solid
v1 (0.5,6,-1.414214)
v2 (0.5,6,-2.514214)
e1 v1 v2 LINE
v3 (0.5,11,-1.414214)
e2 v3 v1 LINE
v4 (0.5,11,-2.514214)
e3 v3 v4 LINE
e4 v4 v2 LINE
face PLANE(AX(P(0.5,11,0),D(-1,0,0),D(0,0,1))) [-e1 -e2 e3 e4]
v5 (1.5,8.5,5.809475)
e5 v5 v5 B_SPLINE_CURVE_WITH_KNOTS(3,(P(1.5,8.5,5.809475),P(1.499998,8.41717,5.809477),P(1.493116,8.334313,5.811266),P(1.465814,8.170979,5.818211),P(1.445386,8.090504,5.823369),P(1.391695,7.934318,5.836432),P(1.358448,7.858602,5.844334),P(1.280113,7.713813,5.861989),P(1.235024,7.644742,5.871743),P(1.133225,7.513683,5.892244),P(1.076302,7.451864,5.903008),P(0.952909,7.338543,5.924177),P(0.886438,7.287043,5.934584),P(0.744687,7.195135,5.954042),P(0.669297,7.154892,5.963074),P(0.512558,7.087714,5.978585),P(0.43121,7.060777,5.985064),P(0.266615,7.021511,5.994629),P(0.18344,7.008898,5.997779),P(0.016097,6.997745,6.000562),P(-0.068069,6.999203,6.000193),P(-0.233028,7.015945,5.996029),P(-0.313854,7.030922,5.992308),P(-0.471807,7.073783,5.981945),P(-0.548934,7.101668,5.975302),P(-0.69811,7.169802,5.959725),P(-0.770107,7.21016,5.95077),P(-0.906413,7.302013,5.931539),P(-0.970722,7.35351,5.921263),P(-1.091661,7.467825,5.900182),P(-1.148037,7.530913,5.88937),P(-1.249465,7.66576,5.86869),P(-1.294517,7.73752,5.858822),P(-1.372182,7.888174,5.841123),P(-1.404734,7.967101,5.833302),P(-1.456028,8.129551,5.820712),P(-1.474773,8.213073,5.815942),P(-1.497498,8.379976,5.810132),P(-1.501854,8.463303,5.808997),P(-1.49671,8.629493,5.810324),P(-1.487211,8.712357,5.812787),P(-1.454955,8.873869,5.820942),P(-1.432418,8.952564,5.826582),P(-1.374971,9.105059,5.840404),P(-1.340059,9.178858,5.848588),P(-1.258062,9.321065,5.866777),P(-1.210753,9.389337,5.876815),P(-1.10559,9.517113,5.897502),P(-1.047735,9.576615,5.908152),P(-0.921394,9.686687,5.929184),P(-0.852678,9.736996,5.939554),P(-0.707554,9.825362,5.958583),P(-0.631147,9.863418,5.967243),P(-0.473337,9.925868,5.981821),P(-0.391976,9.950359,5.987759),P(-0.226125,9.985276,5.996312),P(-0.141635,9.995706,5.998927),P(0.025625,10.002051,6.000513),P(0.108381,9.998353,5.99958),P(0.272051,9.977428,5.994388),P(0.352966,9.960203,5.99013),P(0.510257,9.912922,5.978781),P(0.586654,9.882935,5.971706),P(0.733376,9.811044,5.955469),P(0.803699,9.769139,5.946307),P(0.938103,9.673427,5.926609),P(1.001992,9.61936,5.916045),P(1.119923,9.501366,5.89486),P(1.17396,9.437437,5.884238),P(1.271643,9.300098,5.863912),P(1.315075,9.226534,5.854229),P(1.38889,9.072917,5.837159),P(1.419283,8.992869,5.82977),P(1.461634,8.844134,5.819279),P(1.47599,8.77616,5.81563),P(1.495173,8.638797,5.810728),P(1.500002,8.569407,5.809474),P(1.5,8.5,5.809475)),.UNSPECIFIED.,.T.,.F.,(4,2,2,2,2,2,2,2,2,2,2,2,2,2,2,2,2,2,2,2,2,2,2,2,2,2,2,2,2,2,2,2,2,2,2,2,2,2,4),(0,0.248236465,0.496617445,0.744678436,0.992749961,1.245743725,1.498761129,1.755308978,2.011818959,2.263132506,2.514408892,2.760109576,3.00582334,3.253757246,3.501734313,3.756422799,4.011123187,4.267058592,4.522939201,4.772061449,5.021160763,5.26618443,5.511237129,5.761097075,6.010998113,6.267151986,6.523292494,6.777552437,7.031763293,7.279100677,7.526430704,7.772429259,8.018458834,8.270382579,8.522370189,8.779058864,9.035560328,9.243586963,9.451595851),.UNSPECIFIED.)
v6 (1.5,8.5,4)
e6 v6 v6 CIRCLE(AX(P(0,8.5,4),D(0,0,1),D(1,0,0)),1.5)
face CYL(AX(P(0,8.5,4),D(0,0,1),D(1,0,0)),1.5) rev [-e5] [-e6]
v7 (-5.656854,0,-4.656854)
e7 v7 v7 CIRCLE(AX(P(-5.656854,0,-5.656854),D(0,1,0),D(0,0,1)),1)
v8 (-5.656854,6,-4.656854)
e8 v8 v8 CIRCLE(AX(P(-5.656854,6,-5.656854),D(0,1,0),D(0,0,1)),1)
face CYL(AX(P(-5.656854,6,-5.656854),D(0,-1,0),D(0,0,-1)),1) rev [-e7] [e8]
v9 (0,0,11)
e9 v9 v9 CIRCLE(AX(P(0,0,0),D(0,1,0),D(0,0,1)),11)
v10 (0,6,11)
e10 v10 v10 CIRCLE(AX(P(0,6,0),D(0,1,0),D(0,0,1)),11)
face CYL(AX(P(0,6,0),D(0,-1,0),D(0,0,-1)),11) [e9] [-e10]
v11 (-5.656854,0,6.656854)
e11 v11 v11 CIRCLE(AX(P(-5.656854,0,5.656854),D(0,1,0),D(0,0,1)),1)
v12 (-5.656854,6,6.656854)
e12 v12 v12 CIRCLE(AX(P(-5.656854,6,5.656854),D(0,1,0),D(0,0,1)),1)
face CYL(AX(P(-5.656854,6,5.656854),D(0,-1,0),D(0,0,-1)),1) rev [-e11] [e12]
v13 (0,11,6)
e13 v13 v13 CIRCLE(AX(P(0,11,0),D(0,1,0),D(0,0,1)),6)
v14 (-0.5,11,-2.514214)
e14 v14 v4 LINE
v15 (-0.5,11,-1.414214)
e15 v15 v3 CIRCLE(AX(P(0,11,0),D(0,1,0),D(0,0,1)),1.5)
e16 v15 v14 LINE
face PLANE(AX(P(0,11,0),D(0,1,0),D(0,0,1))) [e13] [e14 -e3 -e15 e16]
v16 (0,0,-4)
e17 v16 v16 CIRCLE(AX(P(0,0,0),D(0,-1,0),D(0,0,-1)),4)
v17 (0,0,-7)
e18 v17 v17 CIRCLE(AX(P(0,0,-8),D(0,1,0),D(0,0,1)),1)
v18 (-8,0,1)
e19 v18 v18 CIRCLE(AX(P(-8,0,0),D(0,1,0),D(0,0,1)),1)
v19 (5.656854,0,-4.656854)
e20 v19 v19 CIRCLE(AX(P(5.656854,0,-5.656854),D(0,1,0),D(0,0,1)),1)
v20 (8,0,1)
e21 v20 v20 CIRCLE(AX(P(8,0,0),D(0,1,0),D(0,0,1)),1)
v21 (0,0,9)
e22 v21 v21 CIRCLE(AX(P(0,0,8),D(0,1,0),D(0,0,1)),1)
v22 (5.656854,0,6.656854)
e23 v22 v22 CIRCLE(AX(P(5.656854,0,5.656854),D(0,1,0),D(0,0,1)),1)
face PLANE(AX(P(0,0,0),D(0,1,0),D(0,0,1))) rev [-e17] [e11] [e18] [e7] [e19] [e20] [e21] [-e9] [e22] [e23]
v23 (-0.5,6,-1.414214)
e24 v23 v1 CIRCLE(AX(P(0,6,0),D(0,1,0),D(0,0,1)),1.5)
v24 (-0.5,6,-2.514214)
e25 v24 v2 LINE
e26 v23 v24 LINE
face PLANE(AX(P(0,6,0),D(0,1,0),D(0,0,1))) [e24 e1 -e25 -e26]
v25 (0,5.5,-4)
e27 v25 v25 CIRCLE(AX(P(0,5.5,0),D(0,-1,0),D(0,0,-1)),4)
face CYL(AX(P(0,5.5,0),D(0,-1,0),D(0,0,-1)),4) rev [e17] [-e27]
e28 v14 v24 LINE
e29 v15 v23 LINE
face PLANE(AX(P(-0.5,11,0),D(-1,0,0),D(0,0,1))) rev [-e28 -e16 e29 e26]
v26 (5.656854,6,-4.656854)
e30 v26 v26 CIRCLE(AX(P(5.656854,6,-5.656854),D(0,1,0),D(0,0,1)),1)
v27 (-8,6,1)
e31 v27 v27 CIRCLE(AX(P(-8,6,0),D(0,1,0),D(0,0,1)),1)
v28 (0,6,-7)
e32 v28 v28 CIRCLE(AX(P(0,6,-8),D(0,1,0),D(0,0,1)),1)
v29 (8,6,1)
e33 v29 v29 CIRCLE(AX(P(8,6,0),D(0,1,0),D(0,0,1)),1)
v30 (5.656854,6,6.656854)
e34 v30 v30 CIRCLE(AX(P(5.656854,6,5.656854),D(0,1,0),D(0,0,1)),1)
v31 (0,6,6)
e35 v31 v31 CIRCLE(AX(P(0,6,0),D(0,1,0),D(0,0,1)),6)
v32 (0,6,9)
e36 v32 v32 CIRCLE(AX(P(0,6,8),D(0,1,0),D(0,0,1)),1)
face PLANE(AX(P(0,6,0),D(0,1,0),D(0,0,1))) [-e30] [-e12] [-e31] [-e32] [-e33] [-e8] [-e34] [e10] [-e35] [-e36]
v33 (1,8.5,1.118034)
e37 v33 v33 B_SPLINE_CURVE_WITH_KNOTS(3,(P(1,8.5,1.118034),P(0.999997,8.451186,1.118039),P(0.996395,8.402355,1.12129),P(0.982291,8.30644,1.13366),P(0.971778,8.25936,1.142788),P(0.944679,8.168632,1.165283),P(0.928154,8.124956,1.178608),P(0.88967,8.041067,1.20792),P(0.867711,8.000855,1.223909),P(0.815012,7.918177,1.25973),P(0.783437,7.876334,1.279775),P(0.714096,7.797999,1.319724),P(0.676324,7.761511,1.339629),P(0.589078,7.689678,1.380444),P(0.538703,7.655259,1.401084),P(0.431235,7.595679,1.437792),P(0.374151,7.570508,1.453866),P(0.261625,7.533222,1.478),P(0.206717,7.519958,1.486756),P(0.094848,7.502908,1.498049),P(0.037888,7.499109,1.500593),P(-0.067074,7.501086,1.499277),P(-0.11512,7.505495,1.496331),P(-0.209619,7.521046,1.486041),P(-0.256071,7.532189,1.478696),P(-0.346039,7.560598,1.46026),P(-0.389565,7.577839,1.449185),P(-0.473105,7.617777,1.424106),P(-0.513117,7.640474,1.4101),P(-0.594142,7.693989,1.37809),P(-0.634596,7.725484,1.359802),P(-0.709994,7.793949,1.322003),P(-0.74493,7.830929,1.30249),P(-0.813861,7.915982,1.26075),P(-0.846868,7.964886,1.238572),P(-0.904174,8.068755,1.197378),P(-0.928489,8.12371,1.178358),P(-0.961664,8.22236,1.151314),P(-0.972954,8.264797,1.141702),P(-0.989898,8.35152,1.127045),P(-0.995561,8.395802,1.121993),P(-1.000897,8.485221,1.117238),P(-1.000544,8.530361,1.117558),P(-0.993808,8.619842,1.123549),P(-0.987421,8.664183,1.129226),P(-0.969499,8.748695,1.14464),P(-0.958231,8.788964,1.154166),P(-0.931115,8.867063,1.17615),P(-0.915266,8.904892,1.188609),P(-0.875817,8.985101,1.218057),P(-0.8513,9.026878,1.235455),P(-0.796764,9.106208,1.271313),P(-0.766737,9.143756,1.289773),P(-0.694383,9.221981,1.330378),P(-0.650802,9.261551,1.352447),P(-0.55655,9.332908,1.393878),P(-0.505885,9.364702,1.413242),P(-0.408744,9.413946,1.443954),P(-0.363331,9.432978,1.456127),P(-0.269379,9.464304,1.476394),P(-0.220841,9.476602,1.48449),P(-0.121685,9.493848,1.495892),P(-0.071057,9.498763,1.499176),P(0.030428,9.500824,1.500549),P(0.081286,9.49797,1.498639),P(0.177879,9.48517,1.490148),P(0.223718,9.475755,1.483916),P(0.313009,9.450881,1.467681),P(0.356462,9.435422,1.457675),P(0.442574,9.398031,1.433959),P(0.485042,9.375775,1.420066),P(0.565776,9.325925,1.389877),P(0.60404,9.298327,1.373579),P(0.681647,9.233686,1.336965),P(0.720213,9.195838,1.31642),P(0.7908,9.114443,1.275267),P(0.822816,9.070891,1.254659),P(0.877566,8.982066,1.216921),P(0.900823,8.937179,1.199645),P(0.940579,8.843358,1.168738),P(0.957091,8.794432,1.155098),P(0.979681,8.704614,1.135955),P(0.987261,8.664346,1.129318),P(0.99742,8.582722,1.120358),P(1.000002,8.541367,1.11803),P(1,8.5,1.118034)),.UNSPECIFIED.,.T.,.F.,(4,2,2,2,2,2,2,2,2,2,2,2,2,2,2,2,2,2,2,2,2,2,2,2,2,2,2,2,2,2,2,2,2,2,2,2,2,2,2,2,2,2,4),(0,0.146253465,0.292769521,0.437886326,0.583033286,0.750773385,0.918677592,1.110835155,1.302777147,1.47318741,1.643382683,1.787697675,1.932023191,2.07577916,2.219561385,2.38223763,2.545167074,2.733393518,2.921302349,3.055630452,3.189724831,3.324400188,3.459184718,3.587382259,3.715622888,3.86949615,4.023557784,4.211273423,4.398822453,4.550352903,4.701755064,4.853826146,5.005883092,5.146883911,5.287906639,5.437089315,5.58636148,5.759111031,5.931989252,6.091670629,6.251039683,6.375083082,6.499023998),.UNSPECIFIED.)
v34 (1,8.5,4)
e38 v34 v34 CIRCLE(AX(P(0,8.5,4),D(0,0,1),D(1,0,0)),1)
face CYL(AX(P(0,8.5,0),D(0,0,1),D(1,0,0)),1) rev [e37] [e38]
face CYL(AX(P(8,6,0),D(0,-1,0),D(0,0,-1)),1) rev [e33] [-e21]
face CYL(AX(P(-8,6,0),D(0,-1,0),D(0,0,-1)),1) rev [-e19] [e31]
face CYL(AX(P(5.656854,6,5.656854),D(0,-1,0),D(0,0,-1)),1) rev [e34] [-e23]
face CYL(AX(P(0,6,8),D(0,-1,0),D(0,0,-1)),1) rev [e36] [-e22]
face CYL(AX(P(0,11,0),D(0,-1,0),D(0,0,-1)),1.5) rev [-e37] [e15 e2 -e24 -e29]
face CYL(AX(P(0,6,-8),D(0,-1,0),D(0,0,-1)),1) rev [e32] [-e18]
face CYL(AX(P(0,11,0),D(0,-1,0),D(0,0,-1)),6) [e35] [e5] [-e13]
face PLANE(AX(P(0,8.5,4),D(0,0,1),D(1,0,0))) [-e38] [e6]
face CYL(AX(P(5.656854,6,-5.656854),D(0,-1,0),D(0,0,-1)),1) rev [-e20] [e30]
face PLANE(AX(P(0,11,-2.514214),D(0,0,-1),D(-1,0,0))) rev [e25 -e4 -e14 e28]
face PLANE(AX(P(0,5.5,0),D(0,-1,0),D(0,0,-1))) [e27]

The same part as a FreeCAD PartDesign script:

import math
import FreeCAD as App
import Part
import Sketcher

doc = App.newDocument("Part")
body = doc.addObject("PartDesign::Body", "Body")

# Sketch on XZ plane
sketch1 = body.newObject("Sketcher::SketchObject", "Sketch")
sketch1.AttachmentSupport = (doc.getObject("XZ_Plane"), [""])
sketch1.MapMode = "FlatFace"
sketch1.addGeometry(Part.Circle(App.Vector(0, 0, 0), App.Vector(0, 0, 1), 11), False)
sketch1.addGeometry(Part.Circle(App.Vector(-5.7, -5.7, 0), App.Vector(0, 0, 1), 1), False)
sketch1.addGeometry(Part.Circle(App.Vector(0, -8, 0), App.Vector(0, 0, 1), 1), False)
sketch1.addGeometry(Part.Circle(App.Vector(-8, 0, 0), App.Vector(0, 0, 1), 1), False)
sketch1.addGeometry(Part.Circle(App.Vector(-5.7, 5.7, 0), App.Vector(0, 0, 1), 1), False)
sketch1.addGeometry(Part.Circle(App.Vector(5.7, -5.7, 0), App.Vector(0, 0, 1), 1), False)
sketch1.addGeometry(Part.Circle(App.Vector(8, 0, 0), App.Vector(0, 0, 1), 1), False)
sketch1.addGeometry(Part.Circle(App.Vector(0, 8, 0), App.Vector(0, 0, 1), 1), False)
sketch1.addGeometry(Part.Circle(App.Vector(5.7, 5.7, 0), App.Vector(0, 0, 1), 1), False)
sketch1.addConstraint(Sketcher.Constraint("Coincident", 0, 3, -1, 1))
sketch1.addConstraint(Sketcher.Constraint("Equal", 1, 2))
sketch1.addConstraint(Sketcher.Constraint("Equal", 2, 3))
sketch1.addConstraint(Sketcher.Constraint("Equal", 3, 4))
sketch1.addConstraint(Sketcher.Constraint("Equal", 4, 5))
sketch1.addConstraint(Sketcher.Constraint("Equal", 5, 6))
sketch1.addConstraint(Sketcher.Constraint("Equal", 6, 7))
sketch1.addConstraint(Sketcher.Constraint("Equal", 7, 8))
sketch1.addConstraint(Sketcher.Constraint("Symmetric", 4, 3, 5, 3, -1, 1))
sketch1.addConstraint(Sketcher.Constraint("Symmetric", 3, 3, 6, 3, -1, 1))
sketch1.addConstraint(Sketcher.Constraint("Symmetric", 2, 3, 7, 3, -1, 1))
sketch1.addConstraint(Sketcher.Constraint("Symmetric", 1, 3, 8, 3, -1, 1))
sketch1.addConstraint(Sketcher.Constraint("Symmetric", 1, 3, 5, 3, -2))
sketch1.addConstraint(Sketcher.Constraint("PointOnObject", 2, 3, -2))
sketch1.addConstraint(Sketcher.Constraint("PointOnObject", 3, 3, -1))
sketch1.addConstraint(Sketcher.Constraint("Diameter", 0, 22.0))
sketch1.addConstraint(Sketcher.Constraint("Diameter", 1, 2.0))
sketch1.addConstraint(Sketcher.Constraint("DistanceY", 2, 3, -1, 1, 8.0))
sketch1.addConstraint(Sketcher.Constraint("DistanceX", 3, 3, -1, 1, 8.0))
sketch1.addConstraint(Sketcher.Constraint("DistanceY", 1, 3, 4, 3, 11.313708))
sketch1.addConstraint(Sketcher.Constraint("DistanceX", 1, 3, 5, 3, 11.313708))
pad1 = body.newObject("PartDesign::Pad", "Pad")
pad1.Profile = sketch1
pad1.Length = 6
pad1.Reversed = True

# Sketch on XZ plane
sketch2 = body.newObject("Sketcher::SketchObject", "Sketch001")
sketch2.AttachmentSupport = (doc.getObject("XZ_Plane"), [""])
sketch2.MapMode = "FlatFace"
sketch2.addGeometry(Part.Circle(App.Vector(0, 0, 0), App.Vector(0, 0, 1), 4), False)
sketch2.addConstraint(Sketcher.Constraint("Coincident", 0, 3, -1, 1))
sketch2.addConstraint(Sketcher.Constraint("Diameter", 0, 8.0))
pocket1 = body.newObject("PartDesign::Pocket", "Pocket")
pocket1.Profile = sketch2
pocket1.Length = 5.5

# Sketch on XZ plane
sketch3 = body.newObject("Sketcher::SketchObject", "Sketch002")
sketch3.AttachmentSupport = (doc.getObject("XZ_Plane"), [""])
sketch3.MapMode = "FlatFace"
sketch3.AttachmentOffset = App.Placement(App.Vector(0, 0, -6), App.Rotation())
sketch3.addGeometry(Part.Circle(App.Vector(0, 0, 0), App.Vector(0, 0, 1), 6), False)
sketch3.addGeometry(Part.ArcOfCircle(Part.Circle(App.Vector(0, 0, 0), App.Vector(0, 0, 1), 1.5), math.radians(-71), math.radians(0)), False)
sketch3.addGeometry(Part.ArcOfCircle(Part.Circle(App.Vector(0, 0, 0), App.Vector(0, 0, 1), 1.5), math.radians(0), math.radians(251)), False)
sketch3.addGeometry(Part.LineSegment(App.Vector(-0.5, -1.4, 0), App.Vector(-0.5, -2.5, 0)), False)
sketch3.addGeometry(Part.LineSegment(App.Vector(-0.5, -2.5, 0), App.Vector(0.5, -2.5, 0)), False)
sketch3.addGeometry(Part.LineSegment(App.Vector(0.5, -2.5, 0), App.Vector(0.5, -1.4, 0)), False)
sketch3.addConstraint(Sketcher.Constraint("Tangent", 1, 2, 2, 1))
sketch3.addConstraint(Sketcher.Constraint("Coincident", 2, 2, 3, 1))
sketch3.addConstraint(Sketcher.Constraint("Coincident", 3, 2, 4, 1))
sketch3.addConstraint(Sketcher.Constraint("Coincident", 4, 2, 5, 1))
sketch3.addConstraint(Sketcher.Constraint("Coincident", 5, 2, 1, 1))
sketch3.addConstraint(Sketcher.Constraint("Vertical", 3))
sketch3.addConstraint(Sketcher.Constraint("Horizontal", 4))
sketch3.addConstraint(Sketcher.Constraint("Vertical", 5))
sketch3.addConstraint(Sketcher.Constraint("Coincident", 0, 3, -1, 1))
sketch3.addConstraint(Sketcher.Constraint("Coincident", 1, 3, -1, 1))
sketch3.addConstraint(Sketcher.Constraint("Equal", 1, 2))
sketch3.addConstraint(Sketcher.Constraint("PointOnObject", 1, 2, -1))
sketch3.addConstraint(Sketcher.Constraint("Horizontal", 2, 2, 5, 2))
sketch3.addConstraint(Sketcher.Constraint("Diameter", 0, 12.0))
sketch3.addConstraint(Sketcher.Constraint("Radius", 1, 1.5))
sketch3.addConstraint(Sketcher.Constraint("DistanceX", 4, 1, 4, 2, 1.0))
sketch3.addConstraint(Sketcher.Constraint("DistanceY", 3, 2, 3, 1, 1.1))
pad2 = body.newObject("PartDesign::Pad", "Pad001")
pad2.Profile = sketch3
pad2.Length = 5
pad2.Reversed = True

# Sketch on XY plane
sketch4 = body.newObject("Sketcher::SketchObject", "Sketch003")
sketch4.AttachmentSupport = (doc.getObject("XY_Plane"), [""])
sketch4.MapMode = "FlatFace"
sketch4.AttachmentOffset = App.Placement(App.Vector(0, 0, 6), App.Rotation())
sketch4.addGeometry(Part.Circle(App.Vector(0, 8.5, 0), App.Vector(0, 0, 1), 1), False)
sketch4.addConstraint(Sketcher.Constraint("PointOnObject", 0, 3, -2))
sketch4.addConstraint(Sketcher.Constraint("Diameter", 0, 2.0))
sketch4.addConstraint(Sketcher.Constraint("DistanceY", -1, 1, 0, 3, 8.5))
pocket2 = body.newObject("PartDesign::Pocket", "Pocket001")
pocket2.Profile = sketch4
pocket2.Length = 6

# Sketch on XY plane
sketch5 = body.newObject("Sketcher::SketchObject", "Sketch004")
sketch5.AttachmentSupport = (doc.getObject("XY_Plane"), [""])
sketch5.MapMode = "FlatFace"
sketch5.AttachmentOffset = App.Placement(App.Vector(0, 0, 6), App.Rotation())
sketch5.addGeometry(Part.Circle(App.Vector(0, 8.5, 0), App.Vector(0, 0, 1), 1.5), False)
sketch5.addGeometry(Part.Circle(App.Vector(0, 8.5, 0), App.Vector(0, 0, 1), 1), False)
sketch5.addConstraint(Sketcher.Constraint("Coincident", 1, 3, 0, 3))
sketch5.addConstraint(Sketcher.Constraint("PointOnObject", 0, 3, -2))
sketch5.addConstraint(Sketcher.Constraint("Diameter", 0, 3.0))
sketch5.addConstraint(Sketcher.Constraint("Diameter", 1, 2.0))
sketch5.addConstraint(Sketcher.Constraint("DistanceY", -1, 1, 0, 3, 8.5))
pocket3 = body.newObject("PartDesign::Pocket", "Pocket002")
pocket3.Profile = sketch5
pocket3.Length = 2

doc.recompute()
